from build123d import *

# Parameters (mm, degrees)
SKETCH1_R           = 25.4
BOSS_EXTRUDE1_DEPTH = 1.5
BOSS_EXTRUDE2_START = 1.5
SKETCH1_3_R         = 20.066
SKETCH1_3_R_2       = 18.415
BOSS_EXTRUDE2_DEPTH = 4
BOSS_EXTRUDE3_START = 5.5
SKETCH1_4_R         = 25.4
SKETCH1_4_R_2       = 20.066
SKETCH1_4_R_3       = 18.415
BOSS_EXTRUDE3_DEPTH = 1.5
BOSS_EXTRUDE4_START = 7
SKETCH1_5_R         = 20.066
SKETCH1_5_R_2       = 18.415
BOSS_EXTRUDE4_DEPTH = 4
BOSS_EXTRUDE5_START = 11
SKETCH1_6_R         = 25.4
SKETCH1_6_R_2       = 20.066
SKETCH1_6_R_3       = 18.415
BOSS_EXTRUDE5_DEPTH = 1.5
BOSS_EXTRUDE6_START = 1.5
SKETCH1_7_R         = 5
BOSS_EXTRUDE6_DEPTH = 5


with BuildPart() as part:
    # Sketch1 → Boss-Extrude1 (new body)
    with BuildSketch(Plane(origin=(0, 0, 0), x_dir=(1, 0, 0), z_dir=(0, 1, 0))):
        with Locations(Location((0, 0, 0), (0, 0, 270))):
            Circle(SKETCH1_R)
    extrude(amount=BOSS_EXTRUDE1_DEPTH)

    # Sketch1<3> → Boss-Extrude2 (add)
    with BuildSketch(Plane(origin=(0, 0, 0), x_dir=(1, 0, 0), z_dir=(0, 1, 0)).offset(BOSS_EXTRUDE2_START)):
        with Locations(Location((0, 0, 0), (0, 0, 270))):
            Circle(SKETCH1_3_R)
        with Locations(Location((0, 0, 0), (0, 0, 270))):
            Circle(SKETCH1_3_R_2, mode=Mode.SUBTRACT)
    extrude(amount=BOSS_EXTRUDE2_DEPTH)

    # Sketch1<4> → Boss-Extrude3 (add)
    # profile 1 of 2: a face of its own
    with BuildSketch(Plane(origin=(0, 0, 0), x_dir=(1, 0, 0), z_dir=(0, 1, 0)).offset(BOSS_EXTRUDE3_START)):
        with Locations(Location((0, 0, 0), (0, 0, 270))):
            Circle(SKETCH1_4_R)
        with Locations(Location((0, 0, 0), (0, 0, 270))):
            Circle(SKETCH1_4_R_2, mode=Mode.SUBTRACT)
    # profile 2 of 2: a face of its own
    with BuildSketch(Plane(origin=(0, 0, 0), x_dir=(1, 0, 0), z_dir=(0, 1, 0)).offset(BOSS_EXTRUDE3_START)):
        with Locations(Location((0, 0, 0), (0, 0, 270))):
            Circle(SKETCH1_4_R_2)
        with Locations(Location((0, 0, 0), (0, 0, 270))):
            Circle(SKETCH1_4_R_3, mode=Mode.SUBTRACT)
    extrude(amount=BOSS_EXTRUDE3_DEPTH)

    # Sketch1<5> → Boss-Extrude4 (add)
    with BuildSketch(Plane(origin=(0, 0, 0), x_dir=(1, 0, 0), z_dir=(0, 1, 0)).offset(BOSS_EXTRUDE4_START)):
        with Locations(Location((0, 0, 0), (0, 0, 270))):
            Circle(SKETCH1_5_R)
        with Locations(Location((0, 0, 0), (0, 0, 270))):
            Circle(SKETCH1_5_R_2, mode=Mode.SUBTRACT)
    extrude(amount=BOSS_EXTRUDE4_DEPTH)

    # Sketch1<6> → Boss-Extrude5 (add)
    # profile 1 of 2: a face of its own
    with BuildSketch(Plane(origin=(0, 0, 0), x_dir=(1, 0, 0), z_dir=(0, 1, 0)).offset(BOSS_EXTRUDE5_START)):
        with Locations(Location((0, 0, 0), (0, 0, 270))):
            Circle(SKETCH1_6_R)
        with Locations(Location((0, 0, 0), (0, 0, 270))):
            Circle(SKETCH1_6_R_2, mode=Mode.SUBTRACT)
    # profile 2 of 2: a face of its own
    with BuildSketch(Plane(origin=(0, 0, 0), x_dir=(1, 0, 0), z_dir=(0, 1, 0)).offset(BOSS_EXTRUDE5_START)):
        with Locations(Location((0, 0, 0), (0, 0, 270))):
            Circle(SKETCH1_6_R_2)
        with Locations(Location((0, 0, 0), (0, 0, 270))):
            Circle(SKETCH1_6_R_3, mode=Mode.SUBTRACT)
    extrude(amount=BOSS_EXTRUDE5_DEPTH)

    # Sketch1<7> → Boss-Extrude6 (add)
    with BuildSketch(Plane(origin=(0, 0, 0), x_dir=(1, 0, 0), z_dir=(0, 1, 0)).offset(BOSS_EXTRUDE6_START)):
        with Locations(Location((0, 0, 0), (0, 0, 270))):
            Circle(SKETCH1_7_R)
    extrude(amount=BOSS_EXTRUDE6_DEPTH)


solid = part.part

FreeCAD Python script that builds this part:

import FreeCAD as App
import Part
import Sketcher
from FreeCAD import Vector

doc = App.newDocument("Part")
body = doc.addObject("PartDesign::Body", "Body")

# Sketch on XZ plane
sketch1 = body.newObject("Sketcher::SketchObject", "Sketch")
sketch1.AttachmentSupport = (doc.getObject("XZ_Plane"), [""])
sketch1.MapMode = "FlatFace"
sketch1.addGeometry(Part.Circle(Vector(0, 0, 0), Vector(0, 0, 1), 25.4), False)
sketch1.addConstraint(Sketcher.Constraint("Coincident", 0, 3, -1, 1))
sketch1.addConstraint(Sketcher.Constraint("Diameter", 0, 50.8))
pad1 = body.newObject("PartDesign::Pad", "Pad")
pad1.Profile = sketch1
pad1.Length = 1.5
pad1.Reversed = True

# Sketch on XZ plane
sketch2 = body.newObject("Sketcher::SketchObject", "Sketch001")
sketch2.AttachmentSupport = (doc.getObject("XZ_Plane"), [""])
sketch2.MapMode = "FlatFace"
sketch2.AttachmentOffset = App.Placement(Vector(0, 0, -1.5), App.Rotation())
sketch2.addGeometry(Part.Circle(Vector(0, 0, 0), Vector(0, 0, 1), 20.066), False)
sketch2.addGeometry(Part.Circle(Vector(0, 0, 0), Vector(0, 0, 1), 18.415), False)
sketch2.addConstraint(Sketcher.Constraint("Coincident", 0, 3, -1, 1))
sketch2.addConstraint(Sketcher.Constraint("Coincident", 1, 3, -1, 1))
sketch2.addConstraint(Sketcher.Constraint("Diameter", 1, 36.83))
sketch2.addConstraint(Sketcher.Constraint("Diameter", 0, 40.132))
pad2 = body.newObject("PartDesign::Pad", "Pad001")
pad2.Profile = sketch2
pad2.Length = 4
pad2.Reversed = True

# Sketch on XZ plane
sketch3 = body.newObject("Sketcher::SketchObject", "Sketch002")
sketch3.AttachmentSupport = (doc.getObject("XZ_Plane"), [""])
sketch3.MapMode = "FlatFace"
sketch3.AttachmentOffset = App.Placement(Vector(0, 0, -5.5), App.Rotation())
sketch3.addGeometry(Part.Circle(Vector(0, 0, 0), Vector(0, 0, 1), 25.4), False)
sketch3.addGeometry(Part.Circle(Vector(0, 0, 0), Vector(0, 0, 1), 18.415), False)
sketch3.addConstraint(Sketcher.Constraint("Coincident", 0, 3, -1, 1))
sketch3.addConstraint(Sketcher.Constraint("Coincident", 1, 3, -1, 1))
sketch3.addConstraint(Sketcher.Constraint("Diameter", 0, 50.8))
sketch3.addConstraint(Sketcher.Constraint("Diameter", 1, 36.83))
pad3 = body.newObject("PartDesign::Pad", "Pad002")
pad3.Profile = sketch3
pad3.Length = 1.5
pad3.Reversed = True

# Sketch on XZ plane
sketch4 = body.newObject("Sketcher::SketchObject", "Sketch003")
sketch4.AttachmentSupport = (doc.getObject("XZ_Plane"), [""])
sketch4.MapMode = "FlatFace"
sketch4.AttachmentOffset = App.Placement(Vector(0, 0, -7), App.Rotation())
sketch4.addGeometry(Part.Circle(Vector(0, 0, 0), Vector(0, 0, 1), 20.066), False)
sketch4.addGeometry(Part.Circle(Vector(0, 0, 0), Vector(0, 0, 1), 18.415), False)
sketch4.addConstraint(Sketcher.Constraint("Coincident", 0, 3, -1, 1))
sketch4.addConstraint(Sketcher.Constraint("Coincident", 1, 3, -1, 1))
sketch4.addConstraint(Sketcher.Constraint("Diameter", 1, 36.83))
sketch4.addConstraint(Sketcher.Constraint("Diameter", 0, 40.132))
pad4 = body.newObject("PartDesign::Pad", "Pad003")
pad4.Profile = sketch4
pad4.Length = 4
pad4.Reversed = True

# Sketch on XZ plane
sketch5 = body.newObject("Sketcher::SketchObject", "Sketch004")
sketch5.AttachmentSupport = (doc.getObject("XZ_Plane"), [""])
sketch5.MapMode = "FlatFace"
sketch5.AttachmentOffset = App.Placement(Vector(0, 0, -11), App.Rotation())
sketch5.addGeometry(Part.Circle(Vector(0, 0, 0), Vector(0, 0, 1), 25.4), False)
sketch5.addGeometry(Part.Circle(Vector(0, 0, 0), Vector(0, 0, 1), 18.415), False)
sketch5.addConstraint(Sketcher.Constraint("Coincident", 0, 3, -1, 1))
sketch5.addConstraint(Sketcher.Constraint("Coincident", 1, 3, -1, 1))
sketch5.addConstraint(Sketcher.Constraint("Diameter", 0, 50.8))
sketch5.addConstraint(Sketcher.Constraint("Diameter", 1, 36.83))
pad5 = body.newObject("PartDesign::Pad", "Pad004")
pad5.Profile = sketch5
pad5.Length = 1.5
pad5.Reversed = True

# Sketch on XZ plane
sketch6 = body.newObject("Sketcher::SketchObject", "Sketch005")
sketch6.AttachmentSupport = (doc.getObject("XZ_Plane"), [""])
sketch6.MapMode = "FlatFace"
sketch6.AttachmentOffset = App.Placement(Vector(0, 0, -1.5), App.Rotation())
sketch6.addGeometry(Part.Circle(Vector(0, 0, 0), Vector(0, 0, 1), 5), False)
sketch6.addConstraint(Sketcher.Constraint("Coincident", 0, 3, -1, 1))
sketch6.addConstraint(Sketcher.Constraint("Diameter", 0, 10.0))
pad6 = body.newObject("PartDesign::Pad", "Pad005")
pad6.Profile = sketch6
pad6.Length = 5
pad6.Reversed = True

doc.recompute()
